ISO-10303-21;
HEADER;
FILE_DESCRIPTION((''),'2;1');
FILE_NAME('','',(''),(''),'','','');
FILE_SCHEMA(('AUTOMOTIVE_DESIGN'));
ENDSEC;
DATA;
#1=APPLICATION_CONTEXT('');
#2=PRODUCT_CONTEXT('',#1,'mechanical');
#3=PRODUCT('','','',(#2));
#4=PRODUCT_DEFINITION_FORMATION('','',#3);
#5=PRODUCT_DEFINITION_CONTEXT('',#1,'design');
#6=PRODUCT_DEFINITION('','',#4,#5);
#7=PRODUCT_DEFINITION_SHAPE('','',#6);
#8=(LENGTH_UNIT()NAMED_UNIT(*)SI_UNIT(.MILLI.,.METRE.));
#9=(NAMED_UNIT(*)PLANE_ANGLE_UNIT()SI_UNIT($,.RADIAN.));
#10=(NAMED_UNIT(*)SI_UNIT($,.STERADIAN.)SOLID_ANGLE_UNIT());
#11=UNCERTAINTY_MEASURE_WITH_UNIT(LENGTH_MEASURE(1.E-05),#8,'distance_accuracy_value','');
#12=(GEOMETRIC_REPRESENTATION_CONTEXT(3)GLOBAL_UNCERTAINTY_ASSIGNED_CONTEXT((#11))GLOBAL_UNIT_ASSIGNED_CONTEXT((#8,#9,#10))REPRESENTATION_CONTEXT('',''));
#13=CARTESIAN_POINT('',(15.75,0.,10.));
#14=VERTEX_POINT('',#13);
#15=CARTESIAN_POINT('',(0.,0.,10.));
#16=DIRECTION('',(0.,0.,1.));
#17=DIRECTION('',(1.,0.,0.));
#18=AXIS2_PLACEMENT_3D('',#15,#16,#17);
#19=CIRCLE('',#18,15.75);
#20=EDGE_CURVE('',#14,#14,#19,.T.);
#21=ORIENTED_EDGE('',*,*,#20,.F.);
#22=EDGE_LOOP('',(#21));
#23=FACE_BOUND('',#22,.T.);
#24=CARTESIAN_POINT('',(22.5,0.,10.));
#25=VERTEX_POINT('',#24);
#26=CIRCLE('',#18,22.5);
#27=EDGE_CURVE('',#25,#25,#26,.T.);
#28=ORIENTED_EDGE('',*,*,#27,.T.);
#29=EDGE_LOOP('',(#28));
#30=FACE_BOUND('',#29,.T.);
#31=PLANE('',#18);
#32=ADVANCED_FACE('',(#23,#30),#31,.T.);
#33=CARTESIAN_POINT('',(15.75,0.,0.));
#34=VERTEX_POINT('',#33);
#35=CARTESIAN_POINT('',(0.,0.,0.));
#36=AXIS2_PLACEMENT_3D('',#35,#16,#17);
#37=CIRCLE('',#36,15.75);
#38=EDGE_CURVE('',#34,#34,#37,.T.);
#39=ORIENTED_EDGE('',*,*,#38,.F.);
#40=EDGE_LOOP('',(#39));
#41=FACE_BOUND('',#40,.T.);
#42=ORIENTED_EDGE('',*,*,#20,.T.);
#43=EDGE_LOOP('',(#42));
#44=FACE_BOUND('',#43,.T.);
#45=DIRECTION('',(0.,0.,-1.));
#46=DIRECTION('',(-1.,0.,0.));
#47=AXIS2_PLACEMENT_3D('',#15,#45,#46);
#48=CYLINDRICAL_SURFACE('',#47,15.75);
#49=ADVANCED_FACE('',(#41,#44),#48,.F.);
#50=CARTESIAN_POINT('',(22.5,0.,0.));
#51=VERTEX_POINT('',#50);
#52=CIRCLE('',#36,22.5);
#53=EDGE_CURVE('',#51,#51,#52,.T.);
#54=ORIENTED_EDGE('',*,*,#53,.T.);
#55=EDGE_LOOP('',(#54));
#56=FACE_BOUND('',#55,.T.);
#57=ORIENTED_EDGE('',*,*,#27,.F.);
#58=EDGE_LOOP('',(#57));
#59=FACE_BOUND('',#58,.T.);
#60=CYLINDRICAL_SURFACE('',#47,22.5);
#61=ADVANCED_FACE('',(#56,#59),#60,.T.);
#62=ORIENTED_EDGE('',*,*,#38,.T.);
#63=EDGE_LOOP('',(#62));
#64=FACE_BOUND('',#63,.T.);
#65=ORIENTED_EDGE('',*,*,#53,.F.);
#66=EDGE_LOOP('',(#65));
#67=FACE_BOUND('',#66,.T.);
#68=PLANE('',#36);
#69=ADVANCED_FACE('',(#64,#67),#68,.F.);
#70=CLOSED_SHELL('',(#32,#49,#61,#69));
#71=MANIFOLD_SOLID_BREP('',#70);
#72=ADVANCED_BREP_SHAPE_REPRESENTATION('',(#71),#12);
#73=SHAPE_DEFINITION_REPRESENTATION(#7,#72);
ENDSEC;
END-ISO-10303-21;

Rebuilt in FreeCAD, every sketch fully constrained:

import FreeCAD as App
import Part
import Sketcher
from FreeCAD import Vector
Q = App.Units.Quantity

doc = App.newDocument("Part")
params = doc.addObject("Spreadsheet::Sheet", "Params")
for row, (alias, value) in enumerate([
    ("sketch1_diameter", "45 mm"),
    ("sketch1_diameter2", "31.5 mm"),
    ("pad1_length", "10 mm"),
], start=1):
    params.set(f"A{row}", alias)
    params.set(f"B{row}", "=" + value)
    params.setAlias(f"B{row}", alias)

body = doc.addObject("PartDesign::Body", "Body")

# Sketch on XY plane
sketch1 = body.newObject("Sketcher::SketchObject", "Sketch")
sketch1.AttachmentSupport = (doc.getObject("XY_Plane"), [""])
sketch1.MapMode = "FlatFace"
sketch1.addGeometry([
    Part.Circle(Vector(0, 0, 0), Vector(0, 0, 1), 22.5),
    Part.Circle(Vector(0, 0, 0), Vector(0, 0, 1), 15.75),
], False)
sketch1.addConstraint([
    Sketcher.Constraint("Coincident", 0, 3, -1, 1),
    Sketcher.Constraint("Coincident", 1, 3, -1, 1),
    Sketcher.Constraint("Diameter", 0, Q("45 mm")),
    Sketcher.Constraint("Diameter", 1, Q("31.5 mm")),
])
sketch1.setExpression("Constraints[2]", "Params.sketch1_diameter")
sketch1.setExpression("Constraints[3]", "Params.sketch1_diameter2")
pad1 = body.newObject("PartDesign::Pad", "Pad")
pad1.Profile = sketch1
pad1.setExpression("Length", "Params.pad1_length")

doc.recompute()
